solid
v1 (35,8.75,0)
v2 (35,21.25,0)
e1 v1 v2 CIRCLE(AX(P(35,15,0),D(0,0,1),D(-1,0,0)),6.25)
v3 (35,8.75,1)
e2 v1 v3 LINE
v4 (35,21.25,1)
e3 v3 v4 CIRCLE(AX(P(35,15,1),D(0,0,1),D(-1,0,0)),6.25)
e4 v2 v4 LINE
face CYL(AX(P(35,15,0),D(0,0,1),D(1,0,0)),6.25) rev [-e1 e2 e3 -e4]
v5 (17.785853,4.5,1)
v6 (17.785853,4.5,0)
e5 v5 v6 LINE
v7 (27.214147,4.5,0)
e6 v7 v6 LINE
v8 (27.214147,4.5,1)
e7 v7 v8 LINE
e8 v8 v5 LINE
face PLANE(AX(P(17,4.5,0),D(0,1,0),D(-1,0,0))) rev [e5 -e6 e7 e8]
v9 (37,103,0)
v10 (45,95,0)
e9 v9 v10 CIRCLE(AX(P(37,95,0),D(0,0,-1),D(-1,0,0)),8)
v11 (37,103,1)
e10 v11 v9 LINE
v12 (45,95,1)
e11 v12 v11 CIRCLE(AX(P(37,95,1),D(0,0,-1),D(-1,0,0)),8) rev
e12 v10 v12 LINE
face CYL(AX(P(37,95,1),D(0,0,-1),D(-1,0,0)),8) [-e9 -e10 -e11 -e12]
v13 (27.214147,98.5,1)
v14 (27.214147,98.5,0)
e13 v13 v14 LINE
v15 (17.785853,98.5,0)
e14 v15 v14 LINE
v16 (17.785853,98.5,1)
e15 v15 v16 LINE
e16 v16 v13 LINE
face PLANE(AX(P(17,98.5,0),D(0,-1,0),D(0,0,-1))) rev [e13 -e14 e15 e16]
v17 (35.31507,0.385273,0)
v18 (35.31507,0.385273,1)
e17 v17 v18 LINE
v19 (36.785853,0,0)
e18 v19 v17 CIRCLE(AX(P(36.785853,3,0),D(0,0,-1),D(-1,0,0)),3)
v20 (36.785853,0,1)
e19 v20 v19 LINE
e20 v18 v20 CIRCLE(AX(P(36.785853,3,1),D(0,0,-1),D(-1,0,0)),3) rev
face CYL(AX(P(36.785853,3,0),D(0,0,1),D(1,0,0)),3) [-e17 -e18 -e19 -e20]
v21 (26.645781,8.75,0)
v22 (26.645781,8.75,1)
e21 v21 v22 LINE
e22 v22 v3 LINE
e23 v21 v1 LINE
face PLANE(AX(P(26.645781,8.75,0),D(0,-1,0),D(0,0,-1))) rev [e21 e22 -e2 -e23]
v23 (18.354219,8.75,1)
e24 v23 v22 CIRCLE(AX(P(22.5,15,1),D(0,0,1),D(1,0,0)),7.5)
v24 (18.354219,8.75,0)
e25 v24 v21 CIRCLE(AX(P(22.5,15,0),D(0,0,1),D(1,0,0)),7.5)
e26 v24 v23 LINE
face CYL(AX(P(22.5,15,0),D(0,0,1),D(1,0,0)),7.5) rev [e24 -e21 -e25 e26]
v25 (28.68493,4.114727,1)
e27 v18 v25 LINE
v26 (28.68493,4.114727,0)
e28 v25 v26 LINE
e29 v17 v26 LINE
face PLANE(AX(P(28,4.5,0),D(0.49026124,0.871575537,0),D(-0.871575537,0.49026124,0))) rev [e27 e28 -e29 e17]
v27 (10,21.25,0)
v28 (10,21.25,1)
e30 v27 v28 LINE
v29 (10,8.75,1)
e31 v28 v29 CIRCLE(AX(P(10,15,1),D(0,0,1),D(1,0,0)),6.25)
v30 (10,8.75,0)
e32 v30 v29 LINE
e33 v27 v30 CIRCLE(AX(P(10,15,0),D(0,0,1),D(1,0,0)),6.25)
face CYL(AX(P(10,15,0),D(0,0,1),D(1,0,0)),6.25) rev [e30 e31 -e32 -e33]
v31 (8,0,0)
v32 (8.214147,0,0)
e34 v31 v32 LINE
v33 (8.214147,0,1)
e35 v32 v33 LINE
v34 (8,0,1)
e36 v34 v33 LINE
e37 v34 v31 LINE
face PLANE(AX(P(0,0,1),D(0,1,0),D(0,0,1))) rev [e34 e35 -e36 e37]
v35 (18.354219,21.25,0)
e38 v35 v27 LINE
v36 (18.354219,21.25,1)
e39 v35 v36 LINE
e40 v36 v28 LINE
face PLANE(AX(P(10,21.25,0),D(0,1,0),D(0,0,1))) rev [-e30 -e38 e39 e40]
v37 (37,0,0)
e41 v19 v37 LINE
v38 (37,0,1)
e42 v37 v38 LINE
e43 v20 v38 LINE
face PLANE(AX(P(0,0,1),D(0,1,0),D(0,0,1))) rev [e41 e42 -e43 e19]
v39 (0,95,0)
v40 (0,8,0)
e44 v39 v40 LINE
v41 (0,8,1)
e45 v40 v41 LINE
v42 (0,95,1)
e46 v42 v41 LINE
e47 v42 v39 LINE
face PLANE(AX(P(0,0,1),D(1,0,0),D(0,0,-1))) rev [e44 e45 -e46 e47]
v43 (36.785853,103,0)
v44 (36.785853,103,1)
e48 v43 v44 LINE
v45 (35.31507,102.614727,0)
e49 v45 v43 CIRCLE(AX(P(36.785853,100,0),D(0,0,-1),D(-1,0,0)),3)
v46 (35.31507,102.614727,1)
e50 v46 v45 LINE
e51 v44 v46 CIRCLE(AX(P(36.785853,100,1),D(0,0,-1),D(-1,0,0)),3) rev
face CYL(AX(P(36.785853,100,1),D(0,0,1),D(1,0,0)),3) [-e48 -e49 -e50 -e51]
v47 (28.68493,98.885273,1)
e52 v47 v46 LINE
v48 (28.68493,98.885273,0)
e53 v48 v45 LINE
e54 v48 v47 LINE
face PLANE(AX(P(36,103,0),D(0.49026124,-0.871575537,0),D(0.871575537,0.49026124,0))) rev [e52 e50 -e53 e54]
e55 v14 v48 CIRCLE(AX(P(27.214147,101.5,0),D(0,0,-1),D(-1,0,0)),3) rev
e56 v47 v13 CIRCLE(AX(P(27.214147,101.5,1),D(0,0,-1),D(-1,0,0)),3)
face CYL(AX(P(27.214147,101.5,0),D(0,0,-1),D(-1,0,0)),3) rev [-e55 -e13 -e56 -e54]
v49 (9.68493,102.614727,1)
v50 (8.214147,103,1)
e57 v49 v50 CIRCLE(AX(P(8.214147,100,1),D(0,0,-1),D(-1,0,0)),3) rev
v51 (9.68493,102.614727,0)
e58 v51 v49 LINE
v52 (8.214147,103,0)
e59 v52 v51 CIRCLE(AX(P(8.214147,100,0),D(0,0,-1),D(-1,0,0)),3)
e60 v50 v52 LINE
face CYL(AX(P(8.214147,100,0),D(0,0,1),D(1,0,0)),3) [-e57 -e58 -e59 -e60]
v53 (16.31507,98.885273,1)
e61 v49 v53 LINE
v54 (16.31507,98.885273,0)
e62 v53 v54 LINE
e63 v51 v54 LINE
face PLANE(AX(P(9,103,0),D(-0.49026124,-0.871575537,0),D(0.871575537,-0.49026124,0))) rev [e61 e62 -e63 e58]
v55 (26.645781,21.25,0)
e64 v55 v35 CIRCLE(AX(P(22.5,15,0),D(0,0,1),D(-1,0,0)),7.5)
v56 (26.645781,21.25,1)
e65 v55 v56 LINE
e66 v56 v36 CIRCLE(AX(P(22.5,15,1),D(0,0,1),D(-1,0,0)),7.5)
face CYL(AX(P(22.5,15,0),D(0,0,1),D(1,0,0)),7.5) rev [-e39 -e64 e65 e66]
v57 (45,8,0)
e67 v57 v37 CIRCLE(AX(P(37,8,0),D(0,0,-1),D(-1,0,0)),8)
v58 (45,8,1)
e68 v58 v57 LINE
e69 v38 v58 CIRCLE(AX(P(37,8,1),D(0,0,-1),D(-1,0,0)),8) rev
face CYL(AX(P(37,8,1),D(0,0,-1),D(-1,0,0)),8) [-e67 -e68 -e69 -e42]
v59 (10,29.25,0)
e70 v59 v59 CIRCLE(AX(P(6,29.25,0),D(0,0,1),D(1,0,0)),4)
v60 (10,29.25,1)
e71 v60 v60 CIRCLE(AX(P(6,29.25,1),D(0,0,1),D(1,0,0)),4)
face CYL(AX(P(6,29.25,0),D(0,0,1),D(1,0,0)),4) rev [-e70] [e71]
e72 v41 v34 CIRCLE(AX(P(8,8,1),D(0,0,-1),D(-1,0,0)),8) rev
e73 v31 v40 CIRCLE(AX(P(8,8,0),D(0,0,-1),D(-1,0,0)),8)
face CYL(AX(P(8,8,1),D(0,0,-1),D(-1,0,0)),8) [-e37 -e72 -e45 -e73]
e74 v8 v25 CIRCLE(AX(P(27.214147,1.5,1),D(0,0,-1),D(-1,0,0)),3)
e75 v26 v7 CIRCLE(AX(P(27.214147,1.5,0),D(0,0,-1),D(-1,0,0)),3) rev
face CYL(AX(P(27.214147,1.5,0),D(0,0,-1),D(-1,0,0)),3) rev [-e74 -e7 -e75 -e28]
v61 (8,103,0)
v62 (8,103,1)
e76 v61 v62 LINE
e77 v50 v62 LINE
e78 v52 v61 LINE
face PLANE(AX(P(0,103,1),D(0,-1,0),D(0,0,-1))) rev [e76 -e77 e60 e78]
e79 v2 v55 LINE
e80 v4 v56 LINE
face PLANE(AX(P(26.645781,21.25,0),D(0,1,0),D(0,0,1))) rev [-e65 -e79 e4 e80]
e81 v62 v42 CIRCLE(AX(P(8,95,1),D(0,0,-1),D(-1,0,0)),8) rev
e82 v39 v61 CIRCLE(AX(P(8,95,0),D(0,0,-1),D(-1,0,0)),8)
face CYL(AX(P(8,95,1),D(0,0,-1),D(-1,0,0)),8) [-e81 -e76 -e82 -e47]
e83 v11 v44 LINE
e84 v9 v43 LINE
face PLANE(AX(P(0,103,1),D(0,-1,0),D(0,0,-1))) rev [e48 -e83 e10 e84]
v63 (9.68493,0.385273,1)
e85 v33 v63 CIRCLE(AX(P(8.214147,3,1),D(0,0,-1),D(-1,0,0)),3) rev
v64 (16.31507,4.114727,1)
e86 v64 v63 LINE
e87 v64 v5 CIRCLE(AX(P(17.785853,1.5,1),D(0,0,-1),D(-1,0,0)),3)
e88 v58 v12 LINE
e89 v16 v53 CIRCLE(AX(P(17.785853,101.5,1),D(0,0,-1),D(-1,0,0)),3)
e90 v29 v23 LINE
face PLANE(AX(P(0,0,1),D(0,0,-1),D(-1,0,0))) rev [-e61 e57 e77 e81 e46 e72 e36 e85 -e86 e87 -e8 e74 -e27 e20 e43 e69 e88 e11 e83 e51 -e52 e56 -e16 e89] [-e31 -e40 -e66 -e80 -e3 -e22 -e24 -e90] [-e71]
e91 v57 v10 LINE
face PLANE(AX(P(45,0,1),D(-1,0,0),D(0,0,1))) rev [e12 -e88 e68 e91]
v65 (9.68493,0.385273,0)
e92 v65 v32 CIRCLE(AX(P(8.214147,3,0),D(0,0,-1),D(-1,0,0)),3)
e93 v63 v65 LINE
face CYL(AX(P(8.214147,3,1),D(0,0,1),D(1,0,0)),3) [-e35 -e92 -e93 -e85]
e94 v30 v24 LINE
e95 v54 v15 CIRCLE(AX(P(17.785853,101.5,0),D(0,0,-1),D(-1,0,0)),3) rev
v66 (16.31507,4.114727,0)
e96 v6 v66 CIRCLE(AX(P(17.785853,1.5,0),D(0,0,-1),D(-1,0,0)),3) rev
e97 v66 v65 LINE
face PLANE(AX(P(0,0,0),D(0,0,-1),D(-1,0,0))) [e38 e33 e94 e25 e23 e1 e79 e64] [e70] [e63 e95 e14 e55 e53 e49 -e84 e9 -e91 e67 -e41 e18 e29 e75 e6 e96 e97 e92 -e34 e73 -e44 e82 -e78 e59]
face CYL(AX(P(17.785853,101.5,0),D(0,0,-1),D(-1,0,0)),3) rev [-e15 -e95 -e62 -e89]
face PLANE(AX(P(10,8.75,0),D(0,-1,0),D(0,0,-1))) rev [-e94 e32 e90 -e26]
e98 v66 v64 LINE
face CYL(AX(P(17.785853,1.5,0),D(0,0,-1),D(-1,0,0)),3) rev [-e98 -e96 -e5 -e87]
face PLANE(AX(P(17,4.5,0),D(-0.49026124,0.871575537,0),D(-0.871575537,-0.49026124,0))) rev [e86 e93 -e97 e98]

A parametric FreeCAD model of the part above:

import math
import FreeCAD as App
import Part
import Sketcher
from FreeCAD import Vector
Q = App.Units.Quantity


def edges_at(feature, points):
    """Names of the edges that pass closest to the given points."""
    edges = feature.Shape.Edges
    near = lambda p: min(range(len(edges)), key=lambda i: edges[i].distToShape(Part.Vertex(*p))[0])
    return sorted({f"Edge{near(p) + 1}" for p in points})

doc = App.newDocument("Part")
body = doc.addObject("PartDesign::Body", "Body")

sketch1 = body.newObject("Sketcher::SketchObject", "Sketch")
sketch1.AttachmentSupport = (doc.getObject("XY_Plane"), [""])
sketch1.MapMode = "FlatFace"
sketch1.addGeometry([
    Part.LineSegment(Vector(0, 103, 0), Vector(0, 0, 0)),
    Part.LineSegment(Vector(0, 0, 0), Vector(45, 0, 0)),
    Part.LineSegment(Vector(45, 0, 0), Vector(45, 103, 0)),
    Part.LineSegment(Vector(45, 103, 0), Vector(0, 103, 0)),
    Part.ArcOfCircle(Part.Circle(Vector(11, 15, 0), Vector(0, 0, 1), 7), math.radians(90), math.radians(270)),
    Part.LineSegment(Vector(11, 22, 0), Vector(34, 22, 0)),
    Part.ArcOfCircle(Part.Circle(Vector(34, 15, 0), Vector(0, 0, 1), 7), math.radians(-90), math.radians(90)),
    Part.LineSegment(Vector(34, 8, 0), Vector(11, 8, 0)),
], False)
sketch1.addConstraint([
    Sketcher.Constraint("Coincident", 0, 2, 1, 1),
    Sketcher.Constraint("Coincident", 1, 2, 2, 1),
    Sketcher.Constraint("Coincident", 2, 2, 3, 1),
    Sketcher.Constraint("Coincident", 3, 2, 0, 1),
    Sketcher.Constraint("Tangent", 4, 1, 5, 1),
    Sketcher.Constraint("Tangent", 5, 2, 6, 2),
    Sketcher.Constraint("Tangent", 6, 1, 7, 1),
    Sketcher.Constraint("Tangent", 7, 2, 4, 2),
    Sketcher.Constraint("Vertical", 0),
    Sketcher.Constraint("Horizontal", 1),
    Sketcher.Constraint("Vertical", 2),
    Sketcher.Constraint("Horizontal", 3),
    Sketcher.Constraint("Horizontal", 5),
    Sketcher.Constraint("Horizontal", 7),
    Sketcher.Constraint("Coincident", 0, 2, -1, 1),
    Sketcher.Constraint("DistanceX", 1, 1, 1, 2, Q("45 mm")),
    Sketcher.Constraint("DistanceY", 0, 2, 0, 1, Q("103 mm")),
    Sketcher.Constraint("Radius", 4, Q("7.25 mm")),
    Sketcher.Constraint("DistanceX", 5, 1, 5, 2, Q("23.5 mm")),
    Sketcher.Constraint("DistanceY", -1, 1, 4, 3, Q("15 mm")),
    Sketcher.Constraint("DistanceX", -1, 1, 4, 3, Q("10.75 mm")),
])
pad1 = body.newObject("PartDesign::Pad", "Pad")
pad1.Profile = sketch1
pad1.Length = 1
doc.recompute()

fillet = body.newObject("PartDesign::Fillet", "Fillet")
fillet.Base = (pad1, edges_at(pad1, [
    (0, 103, 0.5),
    (45, 103, 0.5),
    (45, 0, 0.5),
    (0, 0, 0.5),
]))
fillet.Radius = 8

sketch2 = body.newObject("Sketcher::SketchObject", "Sketch001")
sketch2.AttachmentSupport = (doc.getObject("XY_Plane"), [""])
sketch2.MapMode = "FlatFace"
sketch2.AttachmentOffset = App.Placement(Vector(0, 0, 1), App.Rotation())
sketch2.addGeometry(Part.Circle(Vector(6, 29.2, 0), Vector(0, 0, 1), 4), False)
sketch2.addConstraint([
    Sketcher.Constraint("Diameter", 0, Q("8 mm")),
    Sketcher.Constraint("DistanceX", -1, 1, 0, 3, Q("6 mm")),
    Sketcher.Constraint("DistanceY", -1, 1, 0, 3, Q("29.25 mm")),
])
pocket1 = body.newObject("PartDesign::Pocket", "Pocket")
pocket1.Profile = sketch2
pocket1.Length = 1

sketch3 = body.newObject("Sketcher::SketchObject", "Sketch002")
sketch3.AttachmentSupport = (doc.getObject("XY_Plane"), [""])
sketch3.MapMode = "FlatFace"
sketch3.AttachmentOffset = App.Placement(Vector(0, 0, 1), App.Rotation())
sketch3.addGeometry([
    Part.LineSegment(Vector(17, 98, 0), Vector(28, 98, 0)),
    Part.LineSegment(Vector(28, 98, 0), Vector(36, 103, 0)),
    Part.LineSegment(Vector(36, 103, 0), Vector(9, 103, 0)),
    Part.LineSegment(Vector(9, 103, 0), Vector(17, 98, 0)),
    Part.LineSegment(Vector(28, 4, 0), Vector(17, 4, 0)),
    Part.LineSegment(Vector(17, 4, 0), Vector(9, 0, 0)),
    Part.LineSegment(Vector(9, 0, 0), Vector(36, 0, 0)),
    Part.LineSegment(Vector(36, 0, 0), Vector(28, 4, 0)),
], False)
sketch3.addConstraint([
    Sketcher.Constraint("Coincident", 0, 2, 1, 1),
    Sketcher.Constraint("Coincident", 1, 2, 2, 1),
    Sketcher.Constraint("Coincident", 2, 2, 3, 1),
    Sketcher.Constraint("Coincident", 3, 2, 0, 1),
    Sketcher.Constraint("Coincident", 4, 2, 5, 1),
    Sketcher.Constraint("Coincident", 5, 2, 6, 1),
    Sketcher.Constraint("Coincident", 6, 2, 7, 1),
    Sketcher.Constraint("Coincident", 7, 2, 4, 1),
    Sketcher.Constraint("Horizontal", 0),
    Sketcher.Constraint("Horizontal", 2),
    Sketcher.Constraint("Horizontal", 4),
    Sketcher.Constraint("Horizontal", 6),
    Sketcher.Constraint("PointOnObject", 5, 2, -1),
    Sketcher.Constraint("Parallel", 1, 5),
    Sketcher.Constraint("Parallel", 3, 7),
    Sketcher.Constraint("Vertical", 3, 2, 4, 2),
    Sketcher.Constraint("Vertical", 2, 2, 5, 2),
    Sketcher.Constraint("Vertical", 1, 2, 6, 2),
    Sketcher.Constraint("Vertical", 0, 2, 7, 2),
    Sketcher.Constraint("DistanceX", 0, 1, 0, 2, Q("11 mm")),
    Sketcher.Constraint("DistanceX", 2, 2, 2, 1, Q("27 mm")),
    Sketcher.Constraint("DistanceX", -1, 1, 0, 2, Q("28 mm")),
    Sketcher.Constraint("DistanceY", -1, 1, 1, 2, Q("103 mm")),
    Sketcher.Constraint("DistanceY", 4, 2, 3, 2, Q("94 mm")),
])
pocket2 = body.newObject("PartDesign::Pocket", "Pocket001")
pocket2.Profile = sketch3
pocket2.Length = 1

sketch4 = body.newObject("Sketcher::SketchObject", "Sketch003")
sketch4.AttachmentSupport = (doc.getObject("XY_Plane"), [""])
sketch4.MapMode = "FlatFace"
sketch4.AttachmentOffset = App.Placement(Vector(0, 0, 1), App.Rotation())
sketch4.addGeometry([
    Part.LineSegment(Vector(35, 24, 0), Vector(10, 24, 0)),
    Part.ArcOfCircle(Part.Circle(Vector(10, 15, 0), Vector(0, 0, 1), 9), math.radians(90), math.radians(270)),
    Part.LineSegment(Vector(10, 6, 0), Vector(35, 6, 0)),
    Part.ArcOfCircle(Part.Circle(Vector(35, 15, 0), Vector(0, 0, 1), 9), math.radians(-90), math.radians(90)),
    Part.LineSegment(Vector(10, 21, 0), Vector(18, 21, 0)),
    Part.ArcOfCircle(Part.Circle(Vector(22, 15, 0), Vector(0, 0, 1), 8), math.radians(56), math.radians(124)),
    Part.LineSegment(Vector(27, 21, 0), Vector(35, 21, 0)),
    Part.ArcOfCircle(Part.Circle(Vector(35, 15, 0), Vector(0, 0, 1), 6), math.radians(-90), math.radians(90)),
    Part.LineSegment(Vector(35, 9, 0), Vector(27, 9, 0)),
    Part.ArcOfCircle(Part.Circle(Vector(22, 15, 0), Vector(0, 0, 1), 8), math.radians(-124), math.radians(-56)),
    Part.LineSegment(Vector(18, 9, 0), Vector(10, 9, 0)),
    Part.ArcOfCircle(Part.Circle(Vector(10, 15, 0), Vector(0, 0, 1), 6), math.radians(90), math.radians(270)),
], False)
sketch4.addConstraint([
    Sketcher.Constraint("Tangent", 0, 2, 1, 1),
    Sketcher.Constraint("Tangent", 1, 2, 2, 1),
    Sketcher.Constraint("Tangent", 2, 2, 3, 1),
    Sketcher.Constraint("Tangent", 3, 2, 0, 1),
    Sketcher.Constraint("Coincident", 4, 2, 5, 2),
    Sketcher.Constraint("Coincident", 5, 1, 6, 1),
    Sketcher.Constraint("Tangent", 6, 2, 7, 2),
    Sketcher.Constraint("Tangent", 7, 1, 8, 1),
    Sketcher.Constraint("Coincident", 8, 2, 9, 2),
    Sketcher.Constraint("Coincident", 9, 1, 10, 1),
    Sketcher.Constraint("Tangent", 10, 2, 11, 2),
    Sketcher.Constraint("Tangent", 11, 1, 4, 1),
    Sketcher.Constraint("Horizontal", 0),
    Sketcher.Constraint("Horizontal", 2),
    Sketcher.Constraint("Horizontal", 4),
    Sketcher.Constraint("Horizontal", 6),
    Sketcher.Constraint("Horizontal", 8),
    Sketcher.Constraint("Horizontal", 10),
    Sketcher.Constraint("Coincident", 9, 3, 5, 3),
    Sketcher.Constraint("Equal", 5, 9),
    Sketcher.Constraint("Equal", 7, 11),
    Sketcher.Constraint("Horizontal", 3, 3, 5, 3),
    Sketcher.Constraint("Horizontal", 5, 3, 7, 3),
    Sketcher.Constraint("Horizontal", 9, 3, 11, 3),
    Sketcher.Constraint("Equal", 4, 6),
    Sketcher.Constraint("Radius", 5, Q("7.5 mm")),
    Sketcher.Constraint("Radius", 7, Q("6.25 mm")),
    Sketcher.Constraint("DistanceY", -1, 1, 1, 3, Q("15 mm")),
    Sketcher.Constraint("DistanceX", -1, 1, 7, 3, Q("35 mm")),
    Sketcher.Constraint("DistanceX", -1, 1, 11, 3, Q("10 mm")),
    Sketcher.Constraint("Radius", 1, Q("8.812428 mm")),
    Sketcher.Constraint("DistanceX", -1, 1, 1, 3, Q("9.607202 mm")),
    Sketcher.Constraint("DistanceX", -1, 1, 3, 3, Q("35.392798 mm")),
])
pad2 = body.newObject("PartDesign::Pad", "Pad001")
pad2.Profile = sketch4
pad2.Length = 1
pad2.Reversed = True

sketch5 = body.newObject("Sketcher::SketchObject", "Sketch004")
sketch5.AttachmentSupport = (doc.getObject("XY_Plane"), [""])
sketch5.MapMode = "FlatFace"
sketch5.AttachmentOffset = App.Placement(Vector(0, 0, 1), App.Rotation())
sketch5.addGeometry(Part.Circle(Vector(22, 15, 0), Vector(0, 0, 1), 8), False)
sketch5.addConstraint([
    Sketcher.Constraint("Diameter", 0, Q("15 mm")),
    Sketcher.Constraint("DistanceY", -1, 1, 0, 3, Q("15 mm")),
    Sketcher.Constraint("DistanceX", -1, 1, 0, 3, Q("22.5 mm")),
])
pocket3 = body.newObject("PartDesign::Pocket", "Pocket002")
pocket3.Profile = sketch5
pocket3.Length = 10
doc.recompute()

fillet2 = body.newObject("PartDesign::Fillet", "Fillet001")
fillet2.Base = (pocket3, edges_at(pocket3, [
    (36, 103, 0.5),
    (28, 98.5, 0.5),
    (17, 98.5, 0.5),
    (9, 103, 0.5),
    (28, 4.5, 0.5),
    (36, 0, 0.5),
    (9, 0, 0.5),
    (17, 4.5, 0.5),
]))
fillet2.Radius = 3

doc.recompute()
